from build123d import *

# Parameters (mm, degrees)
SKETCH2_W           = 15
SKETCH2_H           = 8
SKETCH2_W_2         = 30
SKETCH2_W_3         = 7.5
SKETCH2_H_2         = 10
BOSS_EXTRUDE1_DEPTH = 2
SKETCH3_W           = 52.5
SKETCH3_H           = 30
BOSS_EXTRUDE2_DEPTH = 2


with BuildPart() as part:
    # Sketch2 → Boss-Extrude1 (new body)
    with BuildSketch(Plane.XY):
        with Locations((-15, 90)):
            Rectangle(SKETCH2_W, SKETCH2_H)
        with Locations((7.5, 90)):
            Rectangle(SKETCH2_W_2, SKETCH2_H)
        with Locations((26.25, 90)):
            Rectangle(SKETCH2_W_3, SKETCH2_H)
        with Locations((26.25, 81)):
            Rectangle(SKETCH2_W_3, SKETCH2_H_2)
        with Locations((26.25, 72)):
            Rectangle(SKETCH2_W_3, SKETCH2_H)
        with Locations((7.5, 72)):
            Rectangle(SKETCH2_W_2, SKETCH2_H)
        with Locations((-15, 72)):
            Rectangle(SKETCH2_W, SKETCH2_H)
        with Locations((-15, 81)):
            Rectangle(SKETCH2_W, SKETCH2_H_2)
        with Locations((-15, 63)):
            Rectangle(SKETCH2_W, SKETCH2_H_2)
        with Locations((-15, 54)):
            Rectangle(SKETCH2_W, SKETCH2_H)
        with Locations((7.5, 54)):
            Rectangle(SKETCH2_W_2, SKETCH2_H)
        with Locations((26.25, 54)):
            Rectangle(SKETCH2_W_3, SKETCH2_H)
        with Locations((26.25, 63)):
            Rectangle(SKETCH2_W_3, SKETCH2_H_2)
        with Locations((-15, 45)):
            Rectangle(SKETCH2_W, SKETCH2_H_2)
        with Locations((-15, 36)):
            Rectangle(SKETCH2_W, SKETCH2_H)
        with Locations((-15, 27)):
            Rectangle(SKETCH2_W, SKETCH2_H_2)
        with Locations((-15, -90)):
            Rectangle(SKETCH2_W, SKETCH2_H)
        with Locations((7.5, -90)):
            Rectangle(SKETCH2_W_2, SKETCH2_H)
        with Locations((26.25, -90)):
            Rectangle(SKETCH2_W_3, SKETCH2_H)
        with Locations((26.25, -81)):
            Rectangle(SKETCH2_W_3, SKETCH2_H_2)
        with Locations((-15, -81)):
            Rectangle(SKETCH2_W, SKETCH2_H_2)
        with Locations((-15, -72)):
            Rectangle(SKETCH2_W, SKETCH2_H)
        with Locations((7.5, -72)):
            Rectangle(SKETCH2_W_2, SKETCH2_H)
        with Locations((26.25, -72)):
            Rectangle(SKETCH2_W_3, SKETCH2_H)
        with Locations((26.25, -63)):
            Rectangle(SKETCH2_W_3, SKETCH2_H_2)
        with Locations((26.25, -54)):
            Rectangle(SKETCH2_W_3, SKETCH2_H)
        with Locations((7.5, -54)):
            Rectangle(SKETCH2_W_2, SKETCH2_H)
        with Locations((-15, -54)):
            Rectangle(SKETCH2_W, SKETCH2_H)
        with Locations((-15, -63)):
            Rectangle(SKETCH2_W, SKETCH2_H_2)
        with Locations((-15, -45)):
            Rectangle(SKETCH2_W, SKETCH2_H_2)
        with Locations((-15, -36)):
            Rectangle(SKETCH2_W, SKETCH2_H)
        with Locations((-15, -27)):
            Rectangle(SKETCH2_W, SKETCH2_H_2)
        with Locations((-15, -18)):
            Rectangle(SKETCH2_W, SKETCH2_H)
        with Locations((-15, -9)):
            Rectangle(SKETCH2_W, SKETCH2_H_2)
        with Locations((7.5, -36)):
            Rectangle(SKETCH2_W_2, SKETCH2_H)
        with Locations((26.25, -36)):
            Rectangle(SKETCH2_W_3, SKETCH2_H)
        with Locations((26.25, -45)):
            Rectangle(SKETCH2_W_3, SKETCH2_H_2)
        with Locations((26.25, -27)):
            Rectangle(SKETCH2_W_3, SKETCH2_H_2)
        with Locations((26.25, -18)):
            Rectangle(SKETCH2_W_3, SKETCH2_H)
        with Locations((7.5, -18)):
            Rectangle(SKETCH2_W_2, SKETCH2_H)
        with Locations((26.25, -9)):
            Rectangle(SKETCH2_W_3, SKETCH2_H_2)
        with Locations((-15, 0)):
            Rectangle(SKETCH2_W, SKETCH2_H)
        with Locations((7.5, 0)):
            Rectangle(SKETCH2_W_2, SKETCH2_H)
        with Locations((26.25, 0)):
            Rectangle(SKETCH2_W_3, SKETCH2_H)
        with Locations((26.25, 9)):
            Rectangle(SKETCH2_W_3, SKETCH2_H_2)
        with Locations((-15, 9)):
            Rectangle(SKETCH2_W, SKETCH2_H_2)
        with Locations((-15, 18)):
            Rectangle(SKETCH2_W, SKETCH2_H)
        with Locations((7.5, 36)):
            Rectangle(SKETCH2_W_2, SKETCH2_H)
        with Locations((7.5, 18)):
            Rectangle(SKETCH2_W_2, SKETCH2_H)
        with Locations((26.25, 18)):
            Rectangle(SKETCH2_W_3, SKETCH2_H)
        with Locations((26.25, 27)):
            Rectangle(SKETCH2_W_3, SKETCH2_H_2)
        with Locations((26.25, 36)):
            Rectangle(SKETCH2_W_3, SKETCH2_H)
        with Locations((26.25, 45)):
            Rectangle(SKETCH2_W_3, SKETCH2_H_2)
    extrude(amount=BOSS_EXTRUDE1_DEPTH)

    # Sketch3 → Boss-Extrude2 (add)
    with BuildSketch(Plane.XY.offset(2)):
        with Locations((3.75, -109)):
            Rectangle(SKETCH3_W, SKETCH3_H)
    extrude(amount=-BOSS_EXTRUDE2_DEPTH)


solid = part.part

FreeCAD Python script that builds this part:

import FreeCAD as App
import Part
import Sketcher
from FreeCAD import Vector

doc = App.newDocument("Part")
body = doc.addObject("PartDesign::Body", "Body")

sketch1 = body.newObject("Sketcher::SketchObject", "Sketch")
sketch1.AttachmentSupport = (doc.getObject("XY_Plane"), [""])
sketch1.MapMode = "FlatFace"
sketch1.addGeometry([
    Part.LineSegment(Vector(30, -94, 0), Vector(30, 94, 0)),
    Part.LineSegment(Vector(30, 94, 0), Vector(-22.5, 94, 0)),
    Part.LineSegment(Vector(-22.5, 94, 0), Vector(-22.5, -94, 0)),
    Part.LineSegment(Vector(-22.5, -94, 0), Vector(30, -94, 0)),
    Part.LineSegment(Vector(22.5, 40, 0), Vector(-7.5, 40, 0)),
    Part.LineSegment(Vector(-7.5, 40, 0), Vector(-7.5, 50, 0)),
    Part.LineSegment(Vector(-7.5, 50, 0), Vector(22.5, 50, 0)),
    Part.LineSegment(Vector(22.5, 50, 0), Vector(22.5, 40, 0)),
    Part.LineSegment(Vector(22.5, -76, 0), Vector(22.5, -86, 0)),
    Part.LineSegment(Vector(22.5, -86, 0), Vector(-7.5, -86, 0)),
    Part.LineSegment(Vector(-7.5, -86, 0), Vector(-7.5, -76, 0)),
    Part.LineSegment(Vector(-7.5, -76, 0), Vector(22.5, -76, 0)),
    Part.LineSegment(Vector(-7.5, -58, 0), Vector(22.5, -58, 0)),
    Part.LineSegment(Vector(22.5, -58, 0), Vector(22.5, -68, 0)),
    Part.LineSegment(Vector(22.5, -68, 0), Vector(-7.5, -68, 0)),
    Part.LineSegment(Vector(-7.5, -68, 0), Vector(-7.5, -58, 0)),
    Part.LineSegment(Vector(22.5, -50, 0), Vector(-7.5, -50, 0)),
    Part.LineSegment(Vector(-7.5, -50, 0), Vector(-7.5, -40, 0)),
    Part.LineSegment(Vector(-7.5, -40, 0), Vector(22.5, -40, 0)),
    Part.LineSegment(Vector(22.5, -40, 0), Vector(22.5, -50, 0)),
    Part.LineSegment(Vector(22.5, -22, 0), Vector(22.5, -32, 0)),
    Part.LineSegment(Vector(22.5, -32, 0), Vector(-7.5, -32, 0)),
    Part.LineSegment(Vector(-7.5, -32, 0), Vector(-7.5, -22, 0)),
    Part.LineSegment(Vector(-7.5, -22, 0), Vector(22.5, -22, 0)),
    Part.LineSegment(Vector(-7.5, -4, 0), Vector(22.5, -4, 0)),
    Part.LineSegment(Vector(22.5, -4, 0), Vector(22.5, -14, 0)),
    Part.LineSegment(Vector(22.5, -14, 0), Vector(-7.5, -14, 0)),
    Part.LineSegment(Vector(-7.5, -14, 0), Vector(-7.5, -4, 0)),
    Part.LineSegment(Vector(22.5, 14, 0), Vector(22.5, 4, 0)),
    Part.LineSegment(Vector(22.5, 4, 0), Vector(-7.5, 4, 0)),
    Part.LineSegment(Vector(-7.5, 4, 0), Vector(-7.5, 14, 0)),
    Part.LineSegment(Vector(-7.5, 14, 0), Vector(22.5, 14, 0)),
    Part.LineSegment(Vector(22.5, 32, 0), Vector(22.5, 22, 0)),
    Part.LineSegment(Vector(22.5, 22, 0), Vector(-7.5, 22, 0)),
    Part.LineSegment(Vector(-7.5, 22, 0), Vector(-7.5, 32, 0)),
    Part.LineSegment(Vector(-7.5, 32, 0), Vector(22.5, 32, 0)),
    Part.LineSegment(Vector(22.5, 58, 0), Vector(-7.5, 58, 0)),
    Part.LineSegment(Vector(-7.5, 58, 0), Vector(-7.5, 68, 0)),
    Part.LineSegment(Vector(-7.5, 68, 0), Vector(22.5, 68, 0)),
    Part.LineSegment(Vector(22.5, 68, 0), Vector(22.5, 58, 0)),
    Part.LineSegment(Vector(-7.5, 86, 0), Vector(22.5, 86, 0)),
    Part.LineSegment(Vector(22.5, 86, 0), Vector(22.5, 76, 0)),
    Part.LineSegment(Vector(22.5, 76, 0), Vector(-7.5, 76, 0)),
    Part.LineSegment(Vector(-7.5, 76, 0), Vector(-7.5, 86, 0)),
], False)
sketch1.addConstraint([
    Sketcher.Constraint("Coincident", 0, 2, 1, 1),
    Sketcher.Constraint("Coincident", 1, 2, 2, 1),
    Sketcher.Constraint("Coincident", 2, 2, 3, 1),
    Sketcher.Constraint("Coincident", 3, 2, 0, 1),
    Sketcher.Constraint("Coincident", 4, 2, 5, 1),
    Sketcher.Constraint("Coincident", 5, 2, 6, 1),
    Sketcher.Constraint("Coincident", 6, 2, 7, 1),
    Sketcher.Constraint("Coincident", 7, 2, 4, 1),
    Sketcher.Constraint("Coincident", 8, 2, 9, 1),
    Sketcher.Constraint("Coincident", 9, 2, 10, 1),
    Sketcher.Constraint("Coincident", 10, 2, 11, 1),
    Sketcher.Constraint("Coincident", 11, 2, 8, 1),
    Sketcher.Constraint("Coincident", 12, 2, 13, 1),
    Sketcher.Constraint("Coincident", 13, 2, 14, 1),
    Sketcher.Constraint("Coincident", 14, 2, 15, 1),
    Sketcher.Constraint("Coincident", 15, 2, 12, 1),
    Sketcher.Constraint("Coincident", 16, 2, 17, 1),
    Sketcher.Constraint("Coincident", 17, 2, 18, 1),
    Sketcher.Constraint("Coincident", 18, 2, 19, 1),
    Sketcher.Constraint("Coincident", 19, 2, 16, 1),
    Sketcher.Constraint("Coincident", 20, 2, 21, 1),
    Sketcher.Constraint("Coincident", 21, 2, 22, 1),
    Sketcher.Constraint("Coincident", 22, 2, 23, 1),
    Sketcher.Constraint("Coincident", 23, 2, 20, 1),
    Sketcher.Constraint("Coincident", 24, 2, 25, 1),
    Sketcher.Constraint("Coincident", 25, 2, 26, 1),
    Sketcher.Constraint("Coincident", 26, 2, 27, 1),
    Sketcher.Constraint("Coincident", 27, 2, 24, 1),
    Sketcher.Constraint("Coincident", 28, 2, 29, 1),
    Sketcher.Constraint("Coincident", 29, 2, 30, 1),
    Sketcher.Constraint("Coincident", 30, 2, 31, 1),
    Sketcher.Constraint("Coincident", 31, 2, 28, 1),
    Sketcher.Constraint("Coincident", 32, 2, 33, 1),
    Sketcher.Constraint("Coincident", 33, 2, 34, 1),
    Sketcher.Constraint("Coincident", 34, 2, 35, 1),
    Sketcher.Constraint("Coincident", 35, 2, 32, 1),
    Sketcher.Constraint("Coincident", 36, 2, 37, 1),
    Sketcher.Constraint("Coincident", 37, 2, 38, 1),
    Sketcher.Constraint("Coincident", 38, 2, 39, 1),
    Sketcher.Constraint("Coincident", 39, 2, 36, 1),
    Sketcher.Constraint("Coincident", 40, 2, 41, 1),
    Sketcher.Constraint("Coincident", 41, 2, 42, 1),
    Sketcher.Constraint("Coincident", 42, 2, 43, 1),
    Sketcher.Constraint("Coincident", 43, 2, 40, 1),
    Sketcher.Constraint("Vertical", 0),
    Sketcher.Constraint("Horizontal", 1),
    Sketcher.Constraint("Vertical", 2),
    Sketcher.Constraint("Horizontal", 3),
    Sketcher.Constraint("Horizontal", 4),
    Sketcher.Constraint("Vertical", 5),
    Sketcher.Constraint("Horizontal", 6),
    Sketcher.Constraint("Vertical", 7),
    Sketcher.Constraint("Vertical", 8),
    Sketcher.Constraint("Horizontal", 9),
    Sketcher.Constraint("Vertical", 10),
    Sketcher.Constraint("Horizontal", 11),
    Sketcher.Constraint("Horizontal", 12),
    Sketcher.Constraint("Vertical", 13),
    Sketcher.Constraint("Horizontal", 14),
    Sketcher.Constraint("Vertical", 15),
    Sketcher.Constraint("Horizontal", 16),
    Sketcher.Constraint("Vertical", 17),
    Sketcher.Constraint("Horizontal", 18),
    Sketcher.Constraint("Vertical", 19),
    Sketcher.Constraint("Vertical", 20),
    Sketcher.Constraint("Horizontal", 21),
    Sketcher.Constraint("Vertical", 22),
    Sketcher.Constraint("Horizontal", 23),
    Sketcher.Constraint("Horizontal", 24),
    Sketcher.Constraint("Vertical", 25),
    Sketcher.Constraint("Horizontal", 26),
    Sketcher.Constraint("Vertical", 27),
    Sketcher.Constraint("Vertical", 28),
    Sketcher.Constraint("Horizontal", 29),
    Sketcher.Constraint("Vertical", 30),
    Sketcher.Constraint("Horizontal", 31),
    Sketcher.Constraint("Vertical", 32),
    Sketcher.Constraint("Horizontal", 33),
    Sketcher.Constraint("Vertical", 34),
    Sketcher.Constraint("Horizontal", 35),
    Sketcher.Constraint("Horizontal", 36),
    Sketcher.Constraint("Vertical", 37),
    Sketcher.Constraint("Horizontal", 38),
    Sketcher.Constraint("Vertical", 39),
    Sketcher.Constraint("Horizontal", 40),
    Sketcher.Constraint("Vertical", 41),
    Sketcher.Constraint("Horizontal", 42),
    Sketcher.Constraint("Vertical", 43),
    Sketcher.Constraint("Symmetric", 5, 2, 16, 2, -1),
    Sketcher.Constraint("Symmetric", 7, 2, 18, 2, -1),
    Sketcher.Constraint("Symmetric", 24, 2, 28, 2, -1),
    Sketcher.Constraint("Symmetric", 26, 2, 30, 2, -1),
    Sketcher.Constraint("Symmetric", 23, 2, 32, 2, -1),
    Sketcher.Constraint("Symmetric", 21, 2, 34, 2, -1),
    Sketcher.Constraint("Symmetric", 15, 2, 36, 2, -1),
    Sketcher.Constraint("Symmetric", 13, 2, 38, 2, -1),
    Sketcher.Constraint("Symmetric", 8, 2, 40, 2, -1),
    Sketcher.Constraint("Symmetric", 10, 2, 42, 2, -1),
    Sketcher.Constraint("Vertical", 7, 2, 8, 2),
    Sketcher.Constraint("Vertical", 5, 2, 9, 2),
    Sketcher.Constraint("Vertical", 11, 2, 12, 2),
    Sketcher.Constraint("Vertical", 10, 2, 14, 2),
    Sketcher.Constraint("Vertical", 19, 2, 20, 2),
    Sketcher.Constraint("Vertical", 17, 2, 21, 2),
    Sketcher.Constraint("Vertical", 23, 2, 24, 2),
    Sketcher.Constraint("Vertical", 22, 2, 26, 2),
    Sketcher.Constraint("Equal", 7, 8),
    Sketcher.Constraint("Equal", 10, 13),
    Sketcher.Constraint("Equal", 19, 20),
    Sketcher.Constraint("Equal", 22, 25),
    Sketcher.Constraint("DistanceX", 4, 2, 4, 1, 30.0),
    Sketcher.Constraint("DistanceY", 0, 1, 0, 2, 188.0),
    Sketcher.Constraint("DistanceY", 5, 1, 5, 2, 10.0),
    Sketcher.Constraint("DistanceX", 1, 2, 1, 1, 52.5),
    Sketcher.Constraint("DistanceX", -1, 1, 0, 2, 30.0),
    Sketcher.Constraint("DistanceY", -1, 1, 0, 2, 94.0),
    Sketcher.Constraint("DistanceY", -1, 1, 4, 2, 40.0),
    Sketcher.Constraint("DistanceY", 8, 2, -1, 1, 86.0),
    Sketcher.Constraint("DistanceY", 12, 2, -1, 1, 58.0),
    Sketcher.Constraint("DistanceY", 20, 2, -1, 1, 32.0),
    Sketcher.Constraint("DistanceY", 24, 2, -1, 1, 4.0),
    Sketcher.Constraint("DistanceX", 1, 2, 4, 2, 15.0),
])
pad1 = body.newObject("PartDesign::Pad", "Pad")
pad1.Profile = sketch1
pad1.Length = 2

sketch2 = body.newObject("Sketcher::SketchObject", "Sketch001")
sketch2.AttachmentSupport = (doc.getObject("XY_Plane"), [""])
sketch2.MapMode = "FlatFace"
sketch2.AttachmentOffset = App.Placement(Vector(0, 0, 2), App.Rotation())
sketch2.addGeometry([
    Part.LineSegment(Vector(-22.5, -94, 0), Vector(-22.5, -124, 0)),
    Part.LineSegment(Vector(-22.5, -124, 0), Vector(30, -124, 0)),
    Part.LineSegment(Vector(30, -124, 0), Vector(30, -94, 0)),
    Part.LineSegment(Vector(30, -94, 0), Vector(-22.5, -94, 0)),
], False)
sketch2.addConstraint([
    Sketcher.Constraint("Coincident", 0, 2, 1, 1),
    Sketcher.Constraint("Coincident", 1, 2, 2, 1),
    Sketcher.Constraint("Coincident", 2, 2, 3, 1),
    Sketcher.Constraint("Coincident", 3, 2, 0, 1),
    Sketcher.Constraint("Vertical", 0),
    Sketcher.Constraint("Horizontal", 1),
    Sketcher.Constraint("Vertical", 2),
    Sketcher.Constraint("Horizontal", 3),
    Sketcher.Constraint("DistanceY", 0, 2, 0, 1, 30.0),
    Sketcher.Constraint("DistanceX", 1, 1, 1, 2, 52.5),
    Sketcher.Constraint("DistanceY", 0, 2, -1, 1, 124.0),
    Sketcher.Constraint("DistanceX", -1, 1, 1, 2, 30.0),
])
pad2 = body.newObject("PartDesign::Pad", "Pad001")
pad2.Profile = sketch2
pad2.Length = 2
pad2.Reversed = True

doc.recompute()
